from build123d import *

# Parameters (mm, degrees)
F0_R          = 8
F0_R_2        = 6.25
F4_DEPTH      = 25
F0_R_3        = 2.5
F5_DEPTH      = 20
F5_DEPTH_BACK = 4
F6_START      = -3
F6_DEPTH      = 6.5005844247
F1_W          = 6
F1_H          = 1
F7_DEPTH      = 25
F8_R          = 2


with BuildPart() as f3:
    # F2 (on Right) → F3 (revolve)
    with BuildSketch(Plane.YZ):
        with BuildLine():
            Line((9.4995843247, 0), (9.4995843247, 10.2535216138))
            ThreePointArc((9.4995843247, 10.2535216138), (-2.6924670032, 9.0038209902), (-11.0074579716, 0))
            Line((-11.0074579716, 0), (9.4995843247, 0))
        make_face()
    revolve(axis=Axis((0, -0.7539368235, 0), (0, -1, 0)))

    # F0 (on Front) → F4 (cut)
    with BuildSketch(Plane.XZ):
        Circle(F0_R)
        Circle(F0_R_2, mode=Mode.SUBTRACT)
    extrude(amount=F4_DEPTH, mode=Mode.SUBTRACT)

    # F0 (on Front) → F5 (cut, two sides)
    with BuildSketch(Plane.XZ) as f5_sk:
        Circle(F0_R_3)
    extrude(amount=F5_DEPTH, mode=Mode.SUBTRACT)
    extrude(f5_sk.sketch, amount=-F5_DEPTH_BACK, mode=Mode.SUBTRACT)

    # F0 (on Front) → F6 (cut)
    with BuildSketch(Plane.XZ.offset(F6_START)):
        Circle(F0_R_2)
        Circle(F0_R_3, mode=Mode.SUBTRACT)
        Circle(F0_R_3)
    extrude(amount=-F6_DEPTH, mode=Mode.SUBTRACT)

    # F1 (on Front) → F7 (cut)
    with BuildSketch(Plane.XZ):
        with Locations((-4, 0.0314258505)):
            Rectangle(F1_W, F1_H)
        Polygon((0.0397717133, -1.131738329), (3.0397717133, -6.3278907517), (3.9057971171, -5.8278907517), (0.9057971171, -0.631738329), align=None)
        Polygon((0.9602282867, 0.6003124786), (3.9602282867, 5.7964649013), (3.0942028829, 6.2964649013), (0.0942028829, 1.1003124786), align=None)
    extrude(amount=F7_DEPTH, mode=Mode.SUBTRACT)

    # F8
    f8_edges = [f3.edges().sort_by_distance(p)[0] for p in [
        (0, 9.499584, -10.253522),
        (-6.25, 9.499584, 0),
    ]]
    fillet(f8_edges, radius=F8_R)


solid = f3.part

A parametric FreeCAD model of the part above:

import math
import FreeCAD as App
import Part
import Sketcher
from FreeCAD import Vector
Q = App.Units.Quantity


def edges_at(feature, points):
    """Names of the edges that pass closest to the given points."""
    edges = feature.Shape.Edges
    near = lambda p: min(range(len(edges)), key=lambda i: edges[i].distToShape(Part.Vertex(*p))[0])
    return sorted({f"Edge{near(p) + 1}" for p in points})

doc = App.newDocument("Part")
body = doc.addObject("PartDesign::Body", "Body")

sketch1 = body.newObject("Sketcher::SketchObject", "Sketch")
sketch1.AttachmentSupport = (doc.getObject("YZ_Plane"), [""])
sketch1.MapMode = "FlatFace"
sketch1.addGeometry(Part.LineSegment(Vector(9, 0, 0), Vector(9, 10, 0)), False)
sketch1.addGeometry(Part.ArcOfCircle(Part.Circle(Vector(5, -6, 0), Vector(0, 0, 1), 17), math.radians(75), math.radians(158)), False)
sketch1.addGeometry(Part.LineSegment(Vector(-11, 0, 0), Vector(9, 0, 0)), False)
sketch1.addConstraint(Sketcher.Constraint("Coincident", 0, 2, 1, 1))
sketch1.addConstraint(Sketcher.Constraint("Coincident", 1, 2, 2, 1))
sketch1.addConstraint(Sketcher.Constraint("Coincident", 2, 2, 0, 1))
sketch1.addConstraint(Sketcher.Constraint("Vertical", 0))
sketch1.addConstraint(Sketcher.Constraint("Horizontal", 2))
sketch1.addConstraint(Sketcher.Constraint("PointOnObject", 1, 2, -1))
sketch1.addConstraint(Sketcher.Constraint("Radius", 1, Q("17.326272 mm")))
sketch1.addConstraint(Sketcher.Constraint("DistanceY", 0, 1, 0, 2, Q("10.253522 mm")))
sketch1.addConstraint(Sketcher.Constraint("DistanceX", 2, 1, 2, 2, Q("20.507042 mm")))
sketch1.addConstraint(Sketcher.Constraint("DistanceX", -1, 1, 1, 3, Q("5.056078 mm")))
revolution = body.newObject("PartDesign::Revolution", "Revolution")
revolution.Profile = sketch1
revolution.ReferenceAxis = (sketch1, ["H_Axis"])
revolution.Angle = 360

sketch2 = body.newObject("Sketcher::SketchObject", "Sketch001")
sketch2.AttachmentSupport = (doc.getObject("XZ_Plane"), [""])
sketch2.MapMode = "FlatFace"
sketch2.addGeometry(Part.Circle(Vector(0, 0, 0), Vector(0, 0, 1), 8), False)
sketch2.addGeometry(Part.Circle(Vector(0, 0, 0), Vector(0, 0, 1), 6), False)
sketch2.addConstraint(Sketcher.Constraint("Coincident", 0, 3, -1, 1))
sketch2.addConstraint(Sketcher.Constraint("Coincident", 1, 3, -1, 1))
sketch2.addConstraint(Sketcher.Constraint("Diameter", 0, Q("16 mm")))
sketch2.addConstraint(Sketcher.Constraint("Diameter", 1, Q("12.5 mm")))
pocket1 = body.newObject("PartDesign::Pocket", "Pocket")
pocket1.Profile = sketch2
pocket1.Length = 25
pocket1.Reversed = True

sketch3 = body.newObject("Sketcher::SketchObject", "Sketch002")
sketch3.AttachmentSupport = (doc.getObject("XZ_Plane"), [""])
sketch3.MapMode = "FlatFace"
sketch3.addGeometry(Part.Circle(Vector(0, 0, 0), Vector(0, 0, 1), 2.5), False)
sketch3.addConstraint(Sketcher.Constraint("Coincident", 0, 3, -1, 1))
sketch3.addConstraint(Sketcher.Constraint("Diameter", 0, Q("5 mm")))
pocket2 = body.newObject("PartDesign::Pocket", "Pocket001")
pocket2.Profile = sketch3
pocket2.Type = "TwoLengths"
pocket2.Length = 20
pocket2.Length2 = 4
pocket2.Reversed = True

sketch4 = body.newObject("Sketcher::SketchObject", "Sketch003")
sketch4.AttachmentSupport = (doc.getObject("XZ_Plane"), [""])
sketch4.MapMode = "FlatFace"
sketch4.AttachmentOffset = App.Placement(Vector(0, 0, -3), App.Rotation())
sketch4.addGeometry(Part.Circle(Vector(0, 0, 0), Vector(0, 0, 1), 6), False)
sketch4.addConstraint(Sketcher.Constraint("Coincident", 0, 3, -1, 1))
sketch4.addConstraint(Sketcher.Constraint("Diameter", 0, Q("12.5 mm")))
pocket3 = body.newObject("PartDesign::Pocket", "Pocket002")
pocket3.Profile = sketch4
pocket3.Length = 6.500584

sketch5 = body.newObject("Sketcher::SketchObject", "Sketch004")
sketch5.AttachmentSupport = (doc.getObject("XZ_Plane"), [""])
sketch5.MapMode = "FlatFace"
sketch5.addGeometry(Part.LineSegment(Vector(-7, 0.5, 0), Vector(-7, -0.5, 0)), False)
sketch5.addGeometry(Part.LineSegment(Vector(-7, -0.5, 0), Vector(-1, -0.5, 0)), False)
sketch5.addGeometry(Part.LineSegment(Vector(-1, -0.5, 0), Vector(-1, 0.5, 0)), False)
sketch5.addGeometry(Part.LineSegment(Vector(-1, 0.5, 0), Vector(-7, 0.5, 0)), False)
sketch5.addGeometry(Part.LineSegment(Vector(0, -1.1, 0), Vector(3, -6.3, 0)), False)
sketch5.addGeometry(Part.LineSegment(Vector(3, -6.3, 0), Vector(3.9, -5.8, 0)), False)
sketch5.addGeometry(Part.LineSegment(Vector(3.9, -5.8, 0), Vector(0.9, -0.6, 0)), False)
sketch5.addGeometry(Part.LineSegment(Vector(0.9, -0.6, 0), Vector(0, -1.1, 0)), False)
sketch5.addGeometry(Part.LineSegment(Vector(1, 0.6, 0), Vector(4, 5.8, 0)), False)
sketch5.addGeometry(Part.LineSegment(Vector(4, 5.8, 0), Vector(3.1, 6.3, 0)), False)
sketch5.addGeometry(Part.LineSegment(Vector(3.1, 6.3, 0), Vector(0.1, 1.1, 0)), False)
sketch5.addGeometry(Part.LineSegment(Vector(0.1, 1.1, 0), Vector(1, 0.6, 0)), False)
sketch5.addConstraint(Sketcher.Constraint("Coincident", 0, 2, 1, 1))
sketch5.addConstraint(Sketcher.Constraint("Coincident", 1, 2, 2, 1))
sketch5.addConstraint(Sketcher.Constraint("Coincident", 2, 2, 3, 1))
sketch5.addConstraint(Sketcher.Constraint("Coincident", 3, 2, 0, 1))
sketch5.addConstraint(Sketcher.Constraint("Coincident", 4, 2, 5, 1))
sketch5.addConstraint(Sketcher.Constraint("Coincident", 5, 2, 6, 1))
sketch5.addConstraint(Sketcher.Constraint("Coincident", 6, 2, 7, 1))
sketch5.addConstraint(Sketcher.Constraint("Coincident", 7, 2, 4, 1))
sketch5.addConstraint(Sketcher.Constraint("Coincident", 8, 2, 9, 1))
sketch5.addConstraint(Sketcher.Constraint("Coincident", 9, 2, 10, 1))
sketch5.addConstraint(Sketcher.Constraint("Coincident", 10, 2, 11, 1))
sketch5.addConstraint(Sketcher.Constraint("Coincident", 11, 2, 8, 1))
sketch5.addConstraint(Sketcher.Constraint("Vertical", 0))
sketch5.addConstraint(Sketcher.Constraint("Horizontal", 1))
sketch5.addConstraint(Sketcher.Constraint("Vertical", 2))
sketch5.addConstraint(Sketcher.Constraint("Horizontal", 3))
sketch5.addConstraint(Sketcher.Constraint("Perpendicular", 4, 5))
sketch5.addConstraint(Sketcher.Constraint("Perpendicular", 5, 6))
sketch5.addConstraint(Sketcher.Constraint("Perpendicular", 6, 7))
sketch5.addConstraint(Sketcher.Constraint("Perpendicular", 8, 9))
sketch5.addConstraint(Sketcher.Constraint("Perpendicular", 9, 10))
sketch5.addConstraint(Sketcher.Constraint("Perpendicular", 10, 11))
sketch5.addConstraint(Sketcher.Constraint("Equal", 6, 8))
sketch5.addConstraint(Sketcher.Constraint("Equal", 7, 9))
sketch5.addConstraint(Sketcher.Constraint("DistanceX", 1, 1, 1, 2, Q("6 mm")))
sketch5.addConstraint(Sketcher.Constraint("DistanceY", 0, 2, 0, 1, Q("1 mm")))
sketch5.addConstraint(Sketcher.Constraint("Angle", 4, Q("-60 deg")))
sketch5.addConstraint(Sketcher.Constraint("Angle", 8, Q("60 deg")))
sketch5.addConstraint(Sketcher.Constraint("Distance", 4, Q("6 mm")))
sketch5.addConstraint(Sketcher.Constraint("Distance", 5, Q("1 mm")))
sketch5.addConstraint(Sketcher.Constraint("DistanceX", 0, 2, -1, 1, Q("7 mm")))
sketch5.addConstraint(Sketcher.Constraint("DistanceX", -1, 1, 4, 2, Q("3.039772 mm")))
sketch5.addConstraint(Sketcher.Constraint("DistanceY", 4, 2, -1, 1, Q("6.327891 mm")))
sketch5.addConstraint(Sketcher.Constraint("DistanceX", -1, 1, 8, 2, Q("3.960228 mm")))
sketch5.addConstraint(Sketcher.Constraint("DistanceY", 2, 2, 8, 2, Q("5.265039 mm")))
sketch5.addConstraint(Sketcher.Constraint("DistanceY", 6, 2, 10, 2, Q("1.732051 mm")))
pocket4 = body.newObject("PartDesign::Pocket", "Pocket003")
pocket4.Profile = sketch5
pocket4.Length = 25
pocket4.Reversed = True
doc.recompute()

fillet = body.newObject("PartDesign::Fillet", "Fillet")
fillet.Base = (pocket4, edges_at(pocket4, [(0, 9.5, -10.254), (-6.25, 9.5, 0)]))
fillet.Radius = 2

doc.recompute()
